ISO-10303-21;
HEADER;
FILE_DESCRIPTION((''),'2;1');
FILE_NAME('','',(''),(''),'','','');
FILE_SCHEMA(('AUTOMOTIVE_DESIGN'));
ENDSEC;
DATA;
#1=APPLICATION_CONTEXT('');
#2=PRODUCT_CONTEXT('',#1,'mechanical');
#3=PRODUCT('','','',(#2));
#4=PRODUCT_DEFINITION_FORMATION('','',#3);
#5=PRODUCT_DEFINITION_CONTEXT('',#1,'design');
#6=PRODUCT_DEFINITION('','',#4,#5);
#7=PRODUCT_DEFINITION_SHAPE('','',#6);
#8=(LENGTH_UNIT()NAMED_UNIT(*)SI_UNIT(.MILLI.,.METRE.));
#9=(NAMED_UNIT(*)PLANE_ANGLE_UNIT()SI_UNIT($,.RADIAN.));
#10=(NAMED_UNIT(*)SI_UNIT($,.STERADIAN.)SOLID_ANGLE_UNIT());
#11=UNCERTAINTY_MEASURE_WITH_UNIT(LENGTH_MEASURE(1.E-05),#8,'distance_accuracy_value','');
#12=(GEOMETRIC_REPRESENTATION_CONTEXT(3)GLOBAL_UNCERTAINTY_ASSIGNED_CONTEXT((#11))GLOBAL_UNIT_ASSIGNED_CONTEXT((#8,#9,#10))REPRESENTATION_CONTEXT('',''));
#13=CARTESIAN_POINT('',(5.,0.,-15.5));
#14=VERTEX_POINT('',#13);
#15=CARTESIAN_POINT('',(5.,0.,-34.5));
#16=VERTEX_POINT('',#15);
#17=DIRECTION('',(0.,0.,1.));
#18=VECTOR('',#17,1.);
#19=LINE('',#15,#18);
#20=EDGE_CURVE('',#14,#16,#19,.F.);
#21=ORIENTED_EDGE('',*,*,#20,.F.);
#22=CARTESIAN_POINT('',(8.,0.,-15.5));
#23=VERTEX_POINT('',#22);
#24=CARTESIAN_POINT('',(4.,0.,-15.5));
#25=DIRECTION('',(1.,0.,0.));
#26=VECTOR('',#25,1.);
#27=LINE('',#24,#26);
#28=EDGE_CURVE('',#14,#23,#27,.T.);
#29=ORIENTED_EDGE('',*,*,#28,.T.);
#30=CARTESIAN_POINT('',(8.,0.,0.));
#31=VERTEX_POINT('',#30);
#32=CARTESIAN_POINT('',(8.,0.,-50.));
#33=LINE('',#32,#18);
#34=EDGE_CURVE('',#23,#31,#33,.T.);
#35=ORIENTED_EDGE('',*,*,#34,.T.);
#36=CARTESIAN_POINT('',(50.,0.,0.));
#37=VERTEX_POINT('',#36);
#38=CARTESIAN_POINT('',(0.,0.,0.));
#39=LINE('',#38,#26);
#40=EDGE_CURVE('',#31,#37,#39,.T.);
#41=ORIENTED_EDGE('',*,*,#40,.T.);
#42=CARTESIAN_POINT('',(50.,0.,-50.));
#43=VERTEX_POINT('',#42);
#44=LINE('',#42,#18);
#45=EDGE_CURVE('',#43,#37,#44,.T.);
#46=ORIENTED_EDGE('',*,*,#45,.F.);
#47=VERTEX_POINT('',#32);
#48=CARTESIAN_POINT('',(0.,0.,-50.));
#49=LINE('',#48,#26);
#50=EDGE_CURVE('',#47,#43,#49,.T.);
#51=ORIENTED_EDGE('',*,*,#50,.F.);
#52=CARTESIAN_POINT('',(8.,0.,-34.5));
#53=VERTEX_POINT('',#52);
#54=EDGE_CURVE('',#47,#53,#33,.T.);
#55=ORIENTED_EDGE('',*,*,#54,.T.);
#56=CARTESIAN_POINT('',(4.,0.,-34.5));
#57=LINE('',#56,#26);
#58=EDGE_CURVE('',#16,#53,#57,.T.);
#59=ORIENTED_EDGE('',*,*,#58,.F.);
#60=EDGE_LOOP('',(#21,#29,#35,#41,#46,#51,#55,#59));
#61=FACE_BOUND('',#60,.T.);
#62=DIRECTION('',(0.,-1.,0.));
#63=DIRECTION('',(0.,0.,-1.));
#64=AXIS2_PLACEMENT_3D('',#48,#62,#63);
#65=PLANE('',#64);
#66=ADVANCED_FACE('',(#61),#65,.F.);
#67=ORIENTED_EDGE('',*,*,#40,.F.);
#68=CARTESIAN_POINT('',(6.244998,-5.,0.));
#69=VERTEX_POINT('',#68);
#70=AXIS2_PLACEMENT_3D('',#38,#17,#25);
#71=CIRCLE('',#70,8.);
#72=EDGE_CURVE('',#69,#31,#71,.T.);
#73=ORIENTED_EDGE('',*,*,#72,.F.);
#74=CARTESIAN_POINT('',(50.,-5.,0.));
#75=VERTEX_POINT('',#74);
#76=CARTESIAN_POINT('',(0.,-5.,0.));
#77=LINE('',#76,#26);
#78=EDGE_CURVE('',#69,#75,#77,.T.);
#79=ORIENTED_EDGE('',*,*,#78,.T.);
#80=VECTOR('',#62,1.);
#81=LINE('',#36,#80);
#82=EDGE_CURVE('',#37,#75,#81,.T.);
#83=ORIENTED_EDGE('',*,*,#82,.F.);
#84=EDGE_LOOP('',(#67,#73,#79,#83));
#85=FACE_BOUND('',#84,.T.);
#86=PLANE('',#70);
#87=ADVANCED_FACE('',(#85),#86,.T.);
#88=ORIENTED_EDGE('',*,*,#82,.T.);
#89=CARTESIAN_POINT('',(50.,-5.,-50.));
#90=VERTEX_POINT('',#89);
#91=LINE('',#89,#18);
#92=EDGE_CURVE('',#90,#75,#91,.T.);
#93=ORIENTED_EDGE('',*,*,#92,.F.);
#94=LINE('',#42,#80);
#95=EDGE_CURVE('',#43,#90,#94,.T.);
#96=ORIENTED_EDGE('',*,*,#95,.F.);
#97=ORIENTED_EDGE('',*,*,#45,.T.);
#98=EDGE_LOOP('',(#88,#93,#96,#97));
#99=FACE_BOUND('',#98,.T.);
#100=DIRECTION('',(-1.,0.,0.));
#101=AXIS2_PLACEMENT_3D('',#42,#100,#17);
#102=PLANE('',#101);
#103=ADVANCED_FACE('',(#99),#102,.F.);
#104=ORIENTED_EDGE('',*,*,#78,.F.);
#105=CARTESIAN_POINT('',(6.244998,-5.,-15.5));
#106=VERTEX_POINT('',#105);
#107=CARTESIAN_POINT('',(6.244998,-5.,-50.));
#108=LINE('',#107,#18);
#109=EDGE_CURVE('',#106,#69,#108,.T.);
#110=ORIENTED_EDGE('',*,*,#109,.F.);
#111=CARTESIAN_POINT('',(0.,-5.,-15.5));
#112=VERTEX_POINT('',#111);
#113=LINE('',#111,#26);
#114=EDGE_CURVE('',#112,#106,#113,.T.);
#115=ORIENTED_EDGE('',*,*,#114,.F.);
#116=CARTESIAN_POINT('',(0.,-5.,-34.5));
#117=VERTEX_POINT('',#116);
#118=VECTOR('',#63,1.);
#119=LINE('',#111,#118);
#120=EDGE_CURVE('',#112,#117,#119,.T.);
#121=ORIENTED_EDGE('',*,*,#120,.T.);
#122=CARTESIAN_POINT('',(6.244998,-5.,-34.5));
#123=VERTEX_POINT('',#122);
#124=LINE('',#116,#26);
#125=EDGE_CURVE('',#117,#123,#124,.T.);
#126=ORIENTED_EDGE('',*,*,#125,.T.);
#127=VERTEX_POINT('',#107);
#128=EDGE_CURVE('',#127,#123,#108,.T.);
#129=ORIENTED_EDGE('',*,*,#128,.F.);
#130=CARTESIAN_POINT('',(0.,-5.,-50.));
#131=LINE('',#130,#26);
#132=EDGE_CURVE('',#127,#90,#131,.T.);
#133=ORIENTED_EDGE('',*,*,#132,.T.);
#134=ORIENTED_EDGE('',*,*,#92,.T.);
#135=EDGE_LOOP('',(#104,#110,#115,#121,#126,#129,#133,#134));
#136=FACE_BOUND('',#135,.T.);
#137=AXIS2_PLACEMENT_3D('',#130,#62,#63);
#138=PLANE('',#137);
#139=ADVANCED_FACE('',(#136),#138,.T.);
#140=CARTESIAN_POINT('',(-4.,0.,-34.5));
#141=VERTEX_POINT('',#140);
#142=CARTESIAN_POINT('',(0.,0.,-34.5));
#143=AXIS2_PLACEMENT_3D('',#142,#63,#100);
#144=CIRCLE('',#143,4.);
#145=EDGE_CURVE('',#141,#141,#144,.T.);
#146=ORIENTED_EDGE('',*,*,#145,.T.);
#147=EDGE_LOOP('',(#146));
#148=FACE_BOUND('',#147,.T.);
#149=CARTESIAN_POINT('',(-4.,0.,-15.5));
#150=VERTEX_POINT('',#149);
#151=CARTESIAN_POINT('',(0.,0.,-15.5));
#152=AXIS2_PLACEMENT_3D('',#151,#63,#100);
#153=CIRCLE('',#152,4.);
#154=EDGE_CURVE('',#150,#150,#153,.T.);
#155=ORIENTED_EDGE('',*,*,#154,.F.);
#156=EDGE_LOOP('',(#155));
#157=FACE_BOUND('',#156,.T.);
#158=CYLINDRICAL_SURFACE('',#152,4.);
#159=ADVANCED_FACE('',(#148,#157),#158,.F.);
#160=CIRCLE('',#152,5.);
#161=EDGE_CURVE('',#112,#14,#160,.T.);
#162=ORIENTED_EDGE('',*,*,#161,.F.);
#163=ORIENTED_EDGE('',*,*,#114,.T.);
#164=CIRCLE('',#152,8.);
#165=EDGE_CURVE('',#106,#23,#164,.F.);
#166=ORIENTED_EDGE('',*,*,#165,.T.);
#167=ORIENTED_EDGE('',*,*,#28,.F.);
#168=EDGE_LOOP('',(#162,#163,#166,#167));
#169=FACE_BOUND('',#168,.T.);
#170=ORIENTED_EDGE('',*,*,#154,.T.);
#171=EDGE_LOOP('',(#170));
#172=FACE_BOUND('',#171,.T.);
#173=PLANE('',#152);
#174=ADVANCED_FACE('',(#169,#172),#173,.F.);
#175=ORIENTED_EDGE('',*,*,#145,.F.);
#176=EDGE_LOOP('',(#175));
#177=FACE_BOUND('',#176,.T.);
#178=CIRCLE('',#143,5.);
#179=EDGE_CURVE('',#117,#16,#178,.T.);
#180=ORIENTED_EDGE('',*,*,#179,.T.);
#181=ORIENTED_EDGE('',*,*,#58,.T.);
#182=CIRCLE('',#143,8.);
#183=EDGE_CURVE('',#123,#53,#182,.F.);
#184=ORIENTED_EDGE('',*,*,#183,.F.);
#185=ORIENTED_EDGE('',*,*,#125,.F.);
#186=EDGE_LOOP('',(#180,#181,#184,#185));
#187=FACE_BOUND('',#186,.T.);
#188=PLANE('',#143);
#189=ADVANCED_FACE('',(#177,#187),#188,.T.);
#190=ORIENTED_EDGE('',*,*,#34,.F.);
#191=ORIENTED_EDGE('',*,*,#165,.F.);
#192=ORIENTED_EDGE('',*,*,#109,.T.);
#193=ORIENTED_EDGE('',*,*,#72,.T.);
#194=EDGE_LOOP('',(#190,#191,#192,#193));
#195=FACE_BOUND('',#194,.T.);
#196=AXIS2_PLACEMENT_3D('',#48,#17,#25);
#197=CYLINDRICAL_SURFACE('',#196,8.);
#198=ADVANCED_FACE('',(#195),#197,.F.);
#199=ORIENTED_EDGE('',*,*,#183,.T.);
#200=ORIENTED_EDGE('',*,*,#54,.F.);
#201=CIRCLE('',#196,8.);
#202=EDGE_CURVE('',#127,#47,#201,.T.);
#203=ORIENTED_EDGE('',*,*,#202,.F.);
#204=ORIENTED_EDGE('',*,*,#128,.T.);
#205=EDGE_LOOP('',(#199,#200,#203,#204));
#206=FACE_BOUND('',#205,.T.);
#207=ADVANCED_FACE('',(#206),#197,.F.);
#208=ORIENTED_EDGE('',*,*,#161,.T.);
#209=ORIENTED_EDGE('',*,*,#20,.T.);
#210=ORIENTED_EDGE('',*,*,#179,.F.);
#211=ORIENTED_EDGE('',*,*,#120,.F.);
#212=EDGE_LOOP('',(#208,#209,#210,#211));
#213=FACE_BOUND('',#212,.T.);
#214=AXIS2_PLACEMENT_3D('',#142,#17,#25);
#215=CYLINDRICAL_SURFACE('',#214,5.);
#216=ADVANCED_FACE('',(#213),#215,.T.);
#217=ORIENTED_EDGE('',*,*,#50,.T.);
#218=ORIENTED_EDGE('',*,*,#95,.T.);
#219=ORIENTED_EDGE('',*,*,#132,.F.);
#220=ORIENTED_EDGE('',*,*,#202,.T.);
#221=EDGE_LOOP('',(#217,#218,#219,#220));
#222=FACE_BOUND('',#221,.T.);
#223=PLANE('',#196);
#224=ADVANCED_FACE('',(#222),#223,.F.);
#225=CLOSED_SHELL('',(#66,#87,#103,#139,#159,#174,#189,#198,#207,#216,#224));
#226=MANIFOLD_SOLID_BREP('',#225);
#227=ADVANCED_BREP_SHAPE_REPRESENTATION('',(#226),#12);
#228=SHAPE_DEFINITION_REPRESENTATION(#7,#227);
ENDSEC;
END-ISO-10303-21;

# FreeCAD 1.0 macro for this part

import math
import FreeCAD as App
import Part
import Sketcher
Q = App.Units.Quantity


def add_polygon(sketch, points):
    """Adds a closed chain of lines whose ends are joined by coincident constraints."""
    first, n = sketch.GeometryCount, len(points)
    for a, b in zip(points, points[1:] + points[:1]):
        sketch.addGeometry(Part.LineSegment(App.Vector(*a, 0), App.Vector(*b, 0)), False)
    for i in range(n):
        sketch.addConstraint(Sketcher.Constraint("Coincident", first + i, 2, first + (i + 1) % n, 1))

doc = App.newDocument("Part")
params = doc.addObject("Spreadsheet::Sheet", "Params")
for row, (alias, value) in enumerate([
    ("sketch1_width", "50 mm"),
    ("sketch1_height", "5 mm"),
    ("pad1_length", "50 mm"),
    ("sketch2_diameter", "16 mm"),
    ("pocket1_length", "50 mm"),
    ("sketch3_diameter", "10 mm"),
    ("sketch3_diameter2", "8 mm"),
    ("pad2_length", "19 mm"),
    ("sketch4_radius", "4 mm"),
    ("sketch4_width", "6 mm"),
    ("sketch4_height", "5 mm"),
    ("pad3_length", "19 mm"),
], start=1):
    params.set(f"A{row}", alias)
    params.set(f"B{row}", "=" + value)
    params.setAlias(f"B{row}", alias)

body = doc.addObject("PartDesign::Body", "Body")

# Sketch on XY plane
sketch1 = body.newObject("Sketcher::SketchObject", "Sketch")
sketch1.AttachmentSupport = (doc.getObject("XY_Plane"), [""])
sketch1.MapMode = "FlatFace"
add_polygon(sketch1, [(0, 0), (0, -5), (50, -5), (50, 0)])  # lines 0-3
sketch1.addConstraint([
    Sketcher.Constraint("Vertical", 0),
    Sketcher.Constraint("Horizontal", 1),
    Sketcher.Constraint("Vertical", 2),
    Sketcher.Constraint("Horizontal", 3),
    Sketcher.Constraint("Coincident", 3, 2, -1, 1),
    Sketcher.Constraint("DistanceX", 1, 1, 1, 2, Q("50 mm")),
    Sketcher.Constraint("DistanceY", 0, 2, 0, 1, Q("5 mm")),
])
sketch1.setExpression("Constraints[9]", "Params.sketch1_width")
sketch1.setExpression("Constraints[10]", "Params.sketch1_height")
pad1 = body.newObject("PartDesign::Pad", "Pad")
pad1.Profile = sketch1
pad1.setExpression("Length", "Params.pad1_length")
pad1.Reversed = True

# Sketch on XY plane
sketch2 = body.newObject("Sketcher::SketchObject", "Sketch001")
sketch2.AttachmentSupport = (doc.getObject("XY_Plane"), [""])
sketch2.MapMode = "FlatFace"
sketch2.addGeometry(Part.Circle(App.Vector(0, 0, 0), App.Vector(0, 0, 1), 8), False)
sketch2.addConstraint([
    Sketcher.Constraint("Coincident", 0, 3, -1, 1),
    Sketcher.Constraint("Diameter", 0, Q("16 mm")),
])
sketch2.setExpression("Constraints[1]", "Params.sketch2_diameter")
pocket1 = body.newObject("PartDesign::Pocket", "Pocket")
pocket1.Profile = sketch2
pocket1.setExpression("Length", "Params.pocket1_length")
body2 = doc.addObject("PartDesign::Body", "Body001")

# Sketch on XY plane
sketch3 = body2.newObject("Sketcher::SketchObject", "Sketch002")
sketch3.AttachmentSupport = (doc.getObject("XY_Plane001"), [""])
sketch3.MapMode = "FlatFace"
sketch3.AttachmentOffset = App.Placement(App.Vector(0, 0, -15.5), App.Rotation())
sketch3.addGeometry([
    Part.Circle(App.Vector(0, 0, 0), App.Vector(0, 0, 1), 5),
    Part.Circle(App.Vector(0, 0, 0), App.Vector(0, 0, 1), 4),
], False)
sketch3.addConstraint([
    Sketcher.Constraint("Coincident", 0, 3, -1, 1),
    Sketcher.Constraint("Coincident", 1, 3, -1, 1),
    Sketcher.Constraint("Diameter", 0, Q("10 mm")),
    Sketcher.Constraint("Diameter", 1, Q("8 mm")),
])
sketch3.setExpression("Constraints[2]", "Params.sketch3_diameter")
sketch3.setExpression("Constraints[3]", "Params.sketch3_diameter2")
pad2 = body2.newObject("PartDesign::Pad", "Pad001")
pad2.Profile = sketch3
pad2.setExpression("Length", "Params.pad2_length")
pad2.Reversed = True
body.AllowCompound = True
doc.recompute()

boolean = body.newObject("PartDesign::Boolean", "Boolean")
boolean.Type = "Fuse"
boolean.addObjects([body2])

# Sketch on XY plane
sketch4 = body.newObject("Sketcher::SketchObject", "Sketch003")
sketch4.AttachmentSupport = (doc.getObject("XY_Plane"), [""])
sketch4.MapMode = "FlatFace"
sketch4.AttachmentOffset = App.Placement(App.Vector(0, 0, -34.5), App.Rotation())
sketch4.addGeometry([
    Part.LineSegment(App.Vector(4, 0, 0), App.Vector(10, 0, 0)),  # 0
    Part.LineSegment(App.Vector(10, 0, 0), App.Vector(10, -5, 0)),  # 1
    Part.LineSegment(App.Vector(10, -5, 0), App.Vector(0, -5, 0)),  # 2
    Part.LineSegment(App.Vector(0, -5, 0), App.Vector(0, -4, 0)),  # 3
    Part.ArcOfCircle(Part.Circle(App.Vector(0, 0, 0), App.Vector(0, 0, 1), 4), math.radians(-90), math.radians(0)),  # 4
], False)
sketch4.addConstraint([
    Sketcher.Constraint("Coincident", 0, 2, 1, 1),
    Sketcher.Constraint("Coincident", 1, 2, 2, 1),
    Sketcher.Constraint("Coincident", 2, 2, 3, 1),
    Sketcher.Constraint("Coincident", 3, 2, 4, 1),
    Sketcher.Constraint("Coincident", 4, 2, 0, 1),
    Sketcher.Constraint("Horizontal", 0),
    Sketcher.Constraint("Vertical", 1),
    Sketcher.Constraint("Horizontal", 2),
    Sketcher.Constraint("Vertical", 3),
    Sketcher.Constraint("Coincident", 4, 3, -1, 1),
    Sketcher.Constraint("PointOnObject", 0, 2, -1),
    Sketcher.Constraint("PointOnObject", 2, 2, -2),
    Sketcher.Constraint("Radius", 4, Q("4 mm")),
    Sketcher.Constraint("DistanceX", 0, 1, 0, 2, Q("6 mm")),
    Sketcher.Constraint("DistanceY", 1, 2, 1, 1, Q("5 mm")),
])
sketch4.setExpression("Constraints[12]", "Params.sketch4_radius")
sketch4.setExpression("Constraints[13]", "Params.sketch4_width")
sketch4.setExpression("Constraints[14]", "Params.sketch4_height")
pad3 = body.newObject("PartDesign::Pad", "Pad002")
pad3.Profile = sketch4
pad3.setExpression("Length", "Params.pad3_length")

doc.recompute()
